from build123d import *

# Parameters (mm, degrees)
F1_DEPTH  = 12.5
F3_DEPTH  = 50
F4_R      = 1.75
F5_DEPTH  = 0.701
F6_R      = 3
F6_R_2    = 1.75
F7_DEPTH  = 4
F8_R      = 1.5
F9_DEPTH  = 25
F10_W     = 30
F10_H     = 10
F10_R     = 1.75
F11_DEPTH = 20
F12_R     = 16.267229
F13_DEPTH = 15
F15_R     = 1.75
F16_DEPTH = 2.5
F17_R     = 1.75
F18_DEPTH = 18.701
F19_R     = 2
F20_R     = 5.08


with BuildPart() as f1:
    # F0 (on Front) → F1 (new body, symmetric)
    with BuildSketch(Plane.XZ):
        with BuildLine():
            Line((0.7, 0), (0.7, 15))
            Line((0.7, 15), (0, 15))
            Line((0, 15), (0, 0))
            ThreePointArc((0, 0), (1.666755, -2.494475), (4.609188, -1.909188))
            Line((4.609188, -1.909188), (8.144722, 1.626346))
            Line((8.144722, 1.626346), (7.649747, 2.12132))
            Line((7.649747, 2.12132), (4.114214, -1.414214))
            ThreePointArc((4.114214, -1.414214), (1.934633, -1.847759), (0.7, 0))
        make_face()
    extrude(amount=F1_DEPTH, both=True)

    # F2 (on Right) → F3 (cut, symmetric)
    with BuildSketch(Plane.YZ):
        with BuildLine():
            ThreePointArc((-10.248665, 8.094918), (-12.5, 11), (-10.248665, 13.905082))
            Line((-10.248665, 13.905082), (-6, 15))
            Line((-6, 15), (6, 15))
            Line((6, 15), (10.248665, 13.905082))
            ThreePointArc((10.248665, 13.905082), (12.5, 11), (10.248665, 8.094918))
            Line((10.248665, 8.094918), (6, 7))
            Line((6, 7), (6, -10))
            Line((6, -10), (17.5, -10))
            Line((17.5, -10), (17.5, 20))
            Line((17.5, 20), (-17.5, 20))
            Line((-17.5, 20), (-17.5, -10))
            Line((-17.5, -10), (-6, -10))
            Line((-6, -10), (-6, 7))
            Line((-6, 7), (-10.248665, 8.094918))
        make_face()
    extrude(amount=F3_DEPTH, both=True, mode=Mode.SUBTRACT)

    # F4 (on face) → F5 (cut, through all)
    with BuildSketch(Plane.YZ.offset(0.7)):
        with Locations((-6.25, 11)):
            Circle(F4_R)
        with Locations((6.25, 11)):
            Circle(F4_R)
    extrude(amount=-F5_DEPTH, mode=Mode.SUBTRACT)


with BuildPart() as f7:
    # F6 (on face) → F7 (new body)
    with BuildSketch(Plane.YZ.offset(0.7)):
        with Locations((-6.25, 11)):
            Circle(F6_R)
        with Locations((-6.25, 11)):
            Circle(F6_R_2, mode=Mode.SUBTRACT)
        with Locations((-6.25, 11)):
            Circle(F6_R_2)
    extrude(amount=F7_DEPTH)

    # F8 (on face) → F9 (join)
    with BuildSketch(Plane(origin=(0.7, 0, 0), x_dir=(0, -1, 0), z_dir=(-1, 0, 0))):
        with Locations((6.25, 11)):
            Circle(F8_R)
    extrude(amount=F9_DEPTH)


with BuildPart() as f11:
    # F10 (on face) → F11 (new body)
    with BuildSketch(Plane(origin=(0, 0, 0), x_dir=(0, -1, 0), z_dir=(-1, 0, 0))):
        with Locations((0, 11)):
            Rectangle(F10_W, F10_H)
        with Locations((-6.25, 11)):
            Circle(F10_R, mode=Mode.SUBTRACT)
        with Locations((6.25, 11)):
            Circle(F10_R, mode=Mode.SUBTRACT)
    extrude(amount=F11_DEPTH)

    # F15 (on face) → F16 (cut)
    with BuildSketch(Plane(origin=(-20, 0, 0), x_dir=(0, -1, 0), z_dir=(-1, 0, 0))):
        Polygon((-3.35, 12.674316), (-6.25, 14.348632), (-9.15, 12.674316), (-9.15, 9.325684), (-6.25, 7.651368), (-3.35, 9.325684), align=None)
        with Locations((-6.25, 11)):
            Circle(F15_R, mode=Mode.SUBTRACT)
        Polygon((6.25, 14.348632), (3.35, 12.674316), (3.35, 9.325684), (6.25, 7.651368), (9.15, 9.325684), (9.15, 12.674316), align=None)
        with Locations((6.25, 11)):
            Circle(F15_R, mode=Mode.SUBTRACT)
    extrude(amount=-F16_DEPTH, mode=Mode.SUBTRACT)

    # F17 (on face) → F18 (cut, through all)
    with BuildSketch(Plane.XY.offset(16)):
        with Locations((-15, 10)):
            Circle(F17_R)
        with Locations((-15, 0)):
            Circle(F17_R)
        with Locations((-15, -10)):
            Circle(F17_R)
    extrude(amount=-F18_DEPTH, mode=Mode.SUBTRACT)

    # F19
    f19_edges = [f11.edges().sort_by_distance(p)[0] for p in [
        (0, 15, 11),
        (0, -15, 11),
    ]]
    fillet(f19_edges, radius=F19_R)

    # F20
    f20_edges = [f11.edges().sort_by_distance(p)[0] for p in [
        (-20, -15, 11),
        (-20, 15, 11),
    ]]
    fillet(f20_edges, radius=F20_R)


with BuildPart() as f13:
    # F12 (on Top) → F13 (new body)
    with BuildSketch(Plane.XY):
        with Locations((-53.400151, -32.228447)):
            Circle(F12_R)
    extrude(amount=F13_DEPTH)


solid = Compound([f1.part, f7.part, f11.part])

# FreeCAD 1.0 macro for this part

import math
import FreeCAD as App
import Part
import Sketcher
Q = App.Units.Quantity


def edges_at(feature, points):
    """Names of the edges that pass closest to the given points."""
    edges = feature.Shape.Edges
    near = lambda p: min(range(len(edges)), key=lambda i: edges[i].distToShape(Part.Vertex(*p))[0])
    return sorted({f"Edge{near(p) + 1}" for p in points})

doc = App.newDocument("Part")
body = doc.addObject("PartDesign::Body", "Body")

sketch1 = body.newObject("Sketcher::SketchObject", "Sketch")
sketch1.AttachmentSupport = (doc.getObject("XZ_Plane"), [""])
sketch1.MapMode = "FlatFace"
sketch1.addGeometry(Part.LineSegment(App.Vector(0.7, 0, 0), App.Vector(0.7, 15, 0)), False)
sketch1.addGeometry(Part.LineSegment(App.Vector(0.7, 15, 0), App.Vector(0, 15, 0)), False)
sketch1.addGeometry(Part.LineSegment(App.Vector(0, 15, 0), App.Vector(0, 0, 0)), False)
sketch1.addGeometry(Part.ArcOfCircle(Part.Circle(App.Vector(2.7, 0, 0), App.Vector(0, 0, 1), 2.7), math.radians(179.999991), math.radians(315.000013)), False)
sketch1.addGeometry(Part.LineSegment(App.Vector(4.609188, -1.909188, 0), App.Vector(8.144722, 1.626346, 0)), False)
sketch1.addGeometry(Part.LineSegment(App.Vector(8.144722, 1.626346, 0), App.Vector(7.649747, 2.12132, 0)), False)
sketch1.addGeometry(Part.LineSegment(App.Vector(7.649747, 2.12132, 0), App.Vector(4.114214, -1.414214, 0)), False)
sketch1.addGeometry(Part.ArcOfCircle(Part.Circle(App.Vector(2.700001, 0, 0), App.Vector(0, 0, 1), 2.000001), math.radians(-179.99999), math.radians(-45.000017)), False)
sketch1.addConstraint(Sketcher.Constraint("Coincident", 0, 2, 1, 1))
sketch1.addConstraint(Sketcher.Constraint("Coincident", 1, 2, 2, 1))
sketch1.addConstraint(Sketcher.Constraint("Tangent", 2, 2, 3, 1))
sketch1.addConstraint(Sketcher.Constraint("Tangent", 3, 2, 4, 1))
sketch1.addConstraint(Sketcher.Constraint("Coincident", 4, 2, 5, 1))
sketch1.addConstraint(Sketcher.Constraint("Coincident", 5, 2, 6, 1))
sketch1.addConstraint(Sketcher.Constraint("Tangent", 6, 2, 7, 2))
sketch1.addConstraint(Sketcher.Constraint("Tangent", 7, 1, 0, 1))
sketch1.addConstraint(Sketcher.Constraint("Vertical", 0))
sketch1.addConstraint(Sketcher.Constraint("Horizontal", 1))
sketch1.addConstraint(Sketcher.Constraint("Vertical", 2))
sketch1.addConstraint(Sketcher.Constraint("Coincident", 2, 2, -1, 1))
sketch1.addConstraint(Sketcher.Constraint("Coincident", 7, 3, 3, 3))
sketch1.addConstraint(Sketcher.Constraint("Perpendicular", 4, 5))
sketch1.addConstraint(Sketcher.Constraint("Perpendicular", 5, 6))
sketch1.addConstraint(Sketcher.Constraint("Radius", 7, 2.000001))
sketch1.addConstraint(Sketcher.Constraint("Radius", 3, 2.7))
sketch1.addConstraint(Sketcher.Constraint("DistanceY", 0, 1, 0, 2, 15.0))
sketch1.addConstraint(Sketcher.Constraint("Angle", 4, Q("45 deg")))
sketch1.addConstraint(Sketcher.Constraint("Distance", 4, 5.0))
pad1 = body.newObject("PartDesign::Pad", "Pad")
pad1.Profile = sketch1
pad1.Length = 25
pad1.Midplane = True

sketch2 = body.newObject("Sketcher::SketchObject", "Sketch001")
sketch2.AttachmentSupport = (doc.getObject("YZ_Plane"), [""])
sketch2.MapMode = "FlatFace"
sketch2.addGeometry(Part.ArcOfCircle(Part.Circle(App.Vector(-9.5, 11, 0), App.Vector(0, 0, 1), 3), math.radians(104.451183), math.radians(255.548817)), False)
sketch2.addGeometry(Part.LineSegment(App.Vector(-10.248665, 13.905082, 0), App.Vector(-6, 15, 0)), False)
sketch2.addGeometry(Part.LineSegment(App.Vector(-6, 15, 0), App.Vector(6, 15, 0)), False)
sketch2.addGeometry(Part.LineSegment(App.Vector(6, 15, 0), App.Vector(10.248665, 13.905082, 0)), False)
sketch2.addGeometry(Part.ArcOfCircle(Part.Circle(App.Vector(9.5, 11, 0), App.Vector(0, 0, 1), 3), math.radians(-75.548817), math.radians(75.548817)), False)
sketch2.addGeometry(Part.LineSegment(App.Vector(10.248665, 8.094918, 0), App.Vector(6, 7, 0)), False)
sketch2.addGeometry(Part.LineSegment(App.Vector(6, 7, 0), App.Vector(6, -10, 0)), False)
sketch2.addGeometry(Part.LineSegment(App.Vector(6, -10, 0), App.Vector(17.5, -10, 0)), False)
sketch2.addGeometry(Part.LineSegment(App.Vector(17.5, -10, 0), App.Vector(17.5, 20, 0)), False)
sketch2.addGeometry(Part.LineSegment(App.Vector(17.5, 20, 0), App.Vector(-17.5, 20, 0)), False)
sketch2.addGeometry(Part.LineSegment(App.Vector(-17.5, 20, 0), App.Vector(-17.5, -10, 0)), False)
sketch2.addGeometry(Part.LineSegment(App.Vector(-17.5, -10, 0), App.Vector(-6, -10, 0)), False)
sketch2.addGeometry(Part.LineSegment(App.Vector(-6, -10, 0), App.Vector(-6, 7, 0)), False)
sketch2.addGeometry(Part.LineSegment(App.Vector(-6, 7, 0), App.Vector(-10.248665, 8.094918, 0)), False)
sketch2.addConstraint(Sketcher.Constraint("Tangent", 0, 1, 1, 1))
sketch2.addConstraint(Sketcher.Constraint("Coincident", 1, 2, 2, 1))
sketch2.addConstraint(Sketcher.Constraint("Coincident", 2, 2, 3, 1))
sketch2.addConstraint(Sketcher.Constraint("Tangent", 3, 2, 4, 2))
sketch2.addConstraint(Sketcher.Constraint("Tangent", 4, 1, 5, 1))
sketch2.addConstraint(Sketcher.Constraint("Coincident", 5, 2, 6, 1))
sketch2.addConstraint(Sketcher.Constraint("Coincident", 6, 2, 7, 1))
sketch2.addConstraint(Sketcher.Constraint("Coincident", 7, 2, 8, 1))
sketch2.addConstraint(Sketcher.Constraint("Coincident", 8, 2, 9, 1))
sketch2.addConstraint(Sketcher.Constraint("Coincident", 9, 2, 10, 1))
sketch2.addConstraint(Sketcher.Constraint("Coincident", 10, 2, 11, 1))
sketch2.addConstraint(Sketcher.Constraint("Coincident", 11, 2, 12, 1))
sketch2.addConstraint(Sketcher.Constraint("Coincident", 12, 2, 13, 1))
sketch2.addConstraint(Sketcher.Constraint("Tangent", 13, 2, 0, 2))
sketch2.addConstraint(Sketcher.Constraint("Horizontal", 2))
sketch2.addConstraint(Sketcher.Constraint("Vertical", 6))
sketch2.addConstraint(Sketcher.Constraint("Horizontal", 7))
sketch2.addConstraint(Sketcher.Constraint("Vertical", 8))
sketch2.addConstraint(Sketcher.Constraint("Horizontal", 9))
sketch2.addConstraint(Sketcher.Constraint("Vertical", 10))
sketch2.addConstraint(Sketcher.Constraint("Horizontal", 11))
sketch2.addConstraint(Sketcher.Constraint("Vertical", 12))
sketch2.addConstraint(Sketcher.Constraint("Equal", 0, 4))
sketch2.addConstraint(Sketcher.Constraint("Symmetric", 0, 3, 4, 3, -2))
sketch2.addConstraint(Sketcher.Constraint("Symmetric", 7, 2, 10, 2, -2))
sketch2.addConstraint(Sketcher.Constraint("Symmetric", 5, 2, 12, 2, -2))
sketch2.addConstraint(Sketcher.Constraint("Parallel", 1, 5))
sketch2.addConstraint(Sketcher.Constraint("Parallel", 3, 13))
sketch2.addConstraint(Sketcher.Constraint("Vertical", 2, 2, 5, 2))
sketch2.addConstraint(Sketcher.Constraint("Radius", 0, 3.0))
sketch2.addConstraint(Sketcher.Constraint("DistanceX", 2, 1, 2, 2, 12.0))
sketch2.addConstraint(Sketcher.Constraint("DistanceX", 9, 2, 9, 1, 35.0))
sketch2.addConstraint(Sketcher.Constraint("DistanceY", 6, 2, 6, 1, 17.0))
sketch2.addConstraint(Sketcher.Constraint("DistanceY", 8, 1, 8, 2, 30.0))
sketch2.addConstraint(Sketcher.Constraint("DistanceY", -1, 1, 0, 3, 11.0))
sketch2.addConstraint(Sketcher.Constraint("DistanceY", -1, 1, 1, 2, 15.0))
sketch2.addConstraint(Sketcher.Constraint("DistanceX", 0, 3, 4, 3, 19.0))
pocket1 = body.newObject("PartDesign::Pocket", "Pocket")
pocket1.Profile = sketch2
pocket1.Length = 100
pocket1.Midplane = True

sketch3 = body.newObject("Sketcher::SketchObject", "Sketch002")
sketch3.AttachmentSupport = (doc.getObject("YZ_Plane"), [""])
sketch3.MapMode = "FlatFace"
sketch3.AttachmentOffset = App.Placement(App.Vector(0, 0, 0.7), App.Rotation())
sketch3.addGeometry(Part.Circle(App.Vector(-6.25, 11, 0), App.Vector(0, 0, 1), 1.75), False)
sketch3.addGeometry(Part.Circle(App.Vector(6.25, 11, 0), App.Vector(0, 0, 1), 1.75), False)
sketch3.addConstraint(Sketcher.Constraint("Equal", 0, 1))
sketch3.addConstraint(Sketcher.Constraint("Symmetric", 0, 3, 1, 3, -2))
sketch3.addConstraint(Sketcher.Constraint("Diameter", 0, 3.5))
sketch3.addConstraint(Sketcher.Constraint("DistanceY", -1, 1, 0, 3, 11.0))
sketch3.addConstraint(Sketcher.Constraint("DistanceX", 0, 3, 1, 3, 12.5))
pocket2 = body.newObject("PartDesign::Pocket", "Pocket001")
pocket2.Profile = sketch3
pocket2.Type = "ThroughAll"
body2 = doc.addObject("PartDesign::Body", "Body001")

sketch4 = body2.newObject("Sketcher::SketchObject", "Sketch003")
sketch4.AttachmentSupport = (doc.getObject("YZ_Plane001"), [""])
sketch4.MapMode = "FlatFace"
sketch4.AttachmentOffset = App.Placement(App.Vector(0, 0, 0.7), App.Rotation())
sketch4.addGeometry(Part.Circle(App.Vector(-6.25, 11, 0), App.Vector(0, 0, 1), 3), False)
sketch4.addConstraint(Sketcher.Constraint("Diameter", 0, 6.0))
sketch4.addConstraint(Sketcher.Constraint("DistanceY", -1, 1, 0, 3, 11.0))
sketch4.addConstraint(Sketcher.Constraint("DistanceX", 0, 3, -1, 1, 6.25))
pad2 = body2.newObject("PartDesign::Pad", "Pad001")
pad2.Profile = sketch4
pad2.Length = 4

sketch5 = body2.newObject("Sketcher::SketchObject", "Sketch004")
sketch5.AttachmentSupport = (doc.getObject("YZ_Plane001"), [""])
sketch5.MapMode = "FlatFace"
sketch5.AttachmentOffset = App.Placement(App.Vector(0, 0, 0.7), App.Rotation())
sketch5.addGeometry(Part.Circle(App.Vector(-6.25, 11, 0), App.Vector(0, 0, 1), 1.5), False)
sketch5.addConstraint(Sketcher.Constraint("Diameter", 0, 3.0))
sketch5.addConstraint(Sketcher.Constraint("DistanceY", -1, 1, 0, 3, 11.0))
sketch5.addConstraint(Sketcher.Constraint("DistanceX", 0, 3, -1, 1, 6.25))
pad3 = body2.newObject("PartDesign::Pad", "Pad002")
pad3.Profile = sketch5
pad3.Length = 25
pad3.Reversed = True
body3 = doc.addObject("PartDesign::Body", "Body002")

sketch6 = body3.newObject("Sketcher::SketchObject", "Sketch005")
sketch6.AttachmentSupport = (doc.getObject("YZ_Plane002"), [""])
sketch6.MapMode = "FlatFace"
sketch6.addGeometry(Part.LineSegment(App.Vector(15, 16, 0), App.Vector(15, 6, 0)), False)
sketch6.addGeometry(Part.LineSegment(App.Vector(15, 6, 0), App.Vector(-15, 6, 0)), False)
sketch6.addGeometry(Part.LineSegment(App.Vector(-15, 6, 0), App.Vector(-15, 16, 0)), False)
sketch6.addGeometry(Part.LineSegment(App.Vector(-15, 16, 0), App.Vector(15, 16, 0)), False)
sketch6.addGeometry(Part.Circle(App.Vector(6.25, 11, 0), App.Vector(0, 0, 1), 1.75), False)
sketch6.addGeometry(Part.Circle(App.Vector(-6.25, 11, 0), App.Vector(0, 0, 1), 1.75), False)
sketch6.addConstraint(Sketcher.Constraint("Coincident", 0, 2, 1, 1))
sketch6.addConstraint(Sketcher.Constraint("Coincident", 1, 2, 2, 1))
sketch6.addConstraint(Sketcher.Constraint("Coincident", 2, 2, 3, 1))
sketch6.addConstraint(Sketcher.Constraint("Coincident", 3, 2, 0, 1))
sketch6.addConstraint(Sketcher.Constraint("Vertical", 0))
sketch6.addConstraint(Sketcher.Constraint("Horizontal", 1))
sketch6.addConstraint(Sketcher.Constraint("Vertical", 2))
sketch6.addConstraint(Sketcher.Constraint("Horizontal", 3))
sketch6.addConstraint(Sketcher.Constraint("Equal", 4, 5))
sketch6.addConstraint(Sketcher.Constraint("Symmetric", 4, 3, 5, 3, -2))
sketch6.addConstraint(Sketcher.Constraint("Diameter", 4, 3.5))
sketch6.addConstraint(Sketcher.Constraint("DistanceX", 1, 2, 1, 1, 30.0))
sketch6.addConstraint(Sketcher.Constraint("DistanceY", 0, 2, 0, 1, 10.0))
sketch6.addConstraint(Sketcher.Constraint("DistanceY", -1, 1, 4, 3, 11.0))
sketch6.addConstraint(Sketcher.Constraint("DistanceX", -1, 1, 0, 2, 15.0))
sketch6.addConstraint(Sketcher.Constraint("DistanceY", -1, 1, 0, 2, 6.0))
sketch6.addConstraint(Sketcher.Constraint("DistanceX", 5, 3, 4, 3, 12.5))
pad4 = body3.newObject("PartDesign::Pad", "Pad003")
pad4.Profile = sketch6
pad4.Length = 20
pad4.Reversed = True

sketch7 = body3.newObject("Sketcher::SketchObject", "Sketch006")
sketch7.AttachmentSupport = (doc.getObject("YZ_Plane002"), [""])
sketch7.MapMode = "FlatFace"
sketch7.AttachmentOffset = App.Placement(App.Vector(0, 0, -20), App.Rotation())
sketch7.addGeometry(Part.LineSegment(App.Vector(3.35, 12.674316, 0), App.Vector(6.25, 14.348632, 0)), False)
sketch7.addGeometry(Part.LineSegment(App.Vector(6.25, 14.348632, 0), App.Vector(9.15, 12.674316, 0)), False)
sketch7.addGeometry(Part.LineSegment(App.Vector(9.15, 12.674316, 0), App.Vector(9.15, 9.325684, 0)), False)
sketch7.addGeometry(Part.LineSegment(App.Vector(9.15, 9.325684, 0), App.Vector(6.25, 7.651368, 0)), False)
sketch7.addGeometry(Part.LineSegment(App.Vector(6.25, 7.651368, 0), App.Vector(3.35, 9.325684, 0)), False)
sketch7.addGeometry(Part.LineSegment(App.Vector(3.35, 9.325684, 0), App.Vector(3.35, 12.674316, 0)), False)
sketch7.addGeometry(Part.Circle(App.Vector(6.25, 11, 0), App.Vector(0, 0, 1), 1.75), False)
sketch7.addGeometry(Part.LineSegment(App.Vector(-6.25, 14.348632, 0), App.Vector(-3.35, 12.674316, 0)), False)
sketch7.addGeometry(Part.LineSegment(App.Vector(-3.35, 12.674316, 0), App.Vector(-3.35, 9.325684, 0)), False)
sketch7.addGeometry(Part.LineSegment(App.Vector(-3.35, 9.325684, 0), App.Vector(-6.25, 7.651368, 0)), False)
sketch7.addGeometry(Part.LineSegment(App.Vector(-6.25, 7.651368, 0), App.Vector(-9.15, 9.325684, 0)), False)
sketch7.addGeometry(Part.LineSegment(App.Vector(-9.15, 9.325684, 0), App.Vector(-9.15, 12.674316, 0)), False)
sketch7.addGeometry(Part.LineSegment(App.Vector(-9.15, 12.674316, 0), App.Vector(-6.25, 14.348632, 0)), False)
sketch7.addGeometry(Part.Circle(App.Vector(-6.25, 11, 0), App.Vector(0, 0, 1), 1.75), False)
sketch7.addConstraint(Sketcher.Constraint("Coincident", 0, 2, 1, 1))
sketch7.addConstraint(Sketcher.Constraint("Coincident", 1, 2, 2, 1))
sketch7.addConstraint(Sketcher.Constraint("Coincident", 2, 2, 3, 1))
sketch7.addConstraint(Sketcher.Constraint("Coincident", 3, 2, 4, 1))
sketch7.addConstraint(Sketcher.Constraint("Coincident", 4, 2, 5, 1))
sketch7.addConstraint(Sketcher.Constraint("Coincident", 5, 2, 0, 1))
sketch7.addConstraint(Sketcher.Constraint("Coincident", 7, 2, 8, 1))
sketch7.addConstraint(Sketcher.Constraint("Coincident", 8, 2, 9, 1))
sketch7.addConstraint(Sketcher.Constraint("Coincident", 9, 2, 10, 1))
sketch7.addConstraint(Sketcher.Constraint("Coincident", 10, 2, 11, 1))
sketch7.addConstraint(Sketcher.Constraint("Coincident", 11, 2, 12, 1))
sketch7.addConstraint(Sketcher.Constraint("Coincident", 12, 2, 7, 1))
sketch7.addConstraint(Sketcher.Constraint("Vertical", 2))
sketch7.addConstraint(Sketcher.Constraint("Vertical", 5))
sketch7.addConstraint(Sketcher.Constraint("Vertical", 8))
sketch7.addConstraint(Sketcher.Constraint("Vertical", 11))
sketch7.addConstraint(Sketcher.Constraint("Equal", 6, 13))
sketch7.addConstraint(Sketcher.Constraint("Symmetric", 6, 3, 13, 3, -2))
sketch7.addConstraint(Sketcher.Constraint("Symmetric", 5, 2, 7, 2, -2))
sketch7.addConstraint(Sketcher.Constraint("Symmetric", 3, 2, 9, 2, -2))
sketch7.addConstraint(Sketcher.Constraint("Symmetric", 2, 2, 10, 2, -2))
sketch7.addConstraint(Sketcher.Constraint("Symmetric", 0, 2, 12, 2, -2))
sketch7.addConstraint(Sketcher.Constraint("Parallel", 0, 3))
sketch7.addConstraint(Sketcher.Constraint("Parallel", 1, 4))
sketch7.addConstraint(Sketcher.Constraint("Parallel", 4, 7))
sketch7.addConstraint(Sketcher.Constraint("Parallel", 3, 9))
sketch7.addConstraint(Sketcher.Constraint("Parallel", 9, 12))
sketch7.addConstraint(Sketcher.Constraint("Horizontal", 2, 2, 4, 2))
sketch7.addConstraint(Sketcher.Constraint("Horizontal", 1, 2, 5, 2))
sketch7.addConstraint(Sketcher.Constraint("Vertical", 6, 3, 0, 2))
sketch7.addConstraint(Sketcher.Constraint("Diameter", 6, 3.5))
sketch7.addConstraint(Sketcher.Constraint("Angle", 0, Q("30.000003 deg")))
sketch7.addConstraint(Sketcher.Constraint("DistanceY", -1, 1, 6, 3, 11.0))
sketch7.addConstraint(Sketcher.Constraint("DistanceX", 13, 3, 6, 3, 12.5))
sketch7.addConstraint(Sketcher.Constraint("DistanceX", 6, 3, 1, 2, 2.9))
sketch7.addConstraint(Sketcher.Constraint("DistanceY", 2, 2, 2, 1, 3.348632))
sketch7.addConstraint(Sketcher.Constraint("DistanceY", -1, 1, 0, 2, 14.348632))
pocket3 = body3.newObject("PartDesign::Pocket", "Pocket002")
pocket3.Profile = sketch7
pocket3.Length = 2.5
pocket3.Reversed = True

sketch8 = body3.newObject("Sketcher::SketchObject", "Sketch007")
sketch8.AttachmentSupport = (doc.getObject("XY_Plane002"), [""])
sketch8.MapMode = "FlatFace"
sketch8.AttachmentOffset = App.Placement(App.Vector(0, 0, 16), App.Rotation())
sketch8.addGeometry(Part.Circle(App.Vector(-15, 10, 0), App.Vector(0, 0, 1), 1.75), False)
sketch8.addGeometry(Part.Circle(App.Vector(-15, 0, 0), App.Vector(0, 0, 1), 1.75), False)
sketch8.addGeometry(Part.Circle(App.Vector(-15, -10, 0), App.Vector(0, 0, 1), 1.75), False)
sketch8.addConstraint(Sketcher.Constraint("Equal", 0, 1))
sketch8.addConstraint(Sketcher.Constraint("Equal", 1, 2))
sketch8.addConstraint(Sketcher.Constraint("Symmetric", 0, 3, 2, 3, -1))
sketch8.addConstraint(Sketcher.Constraint("PointOnObject", 1, 3, -1))
sketch8.addConstraint(Sketcher.Constraint("Vertical", 0, 3, 1, 3))
sketch8.addConstraint(Sketcher.Constraint("Diameter", 0, 3.5))
sketch8.addConstraint(Sketcher.Constraint("DistanceX", 0, 3, -1, 1, 15.0))
sketch8.addConstraint(Sketcher.Constraint("DistanceY", -1, 1, 0, 3, 10.0))
pocket4 = body3.newObject("PartDesign::Pocket", "Pocket003")
pocket4.Profile = sketch8
pocket4.Type = "ThroughAll"
doc.recompute()

fillet = body3.newObject("PartDesign::Fillet", "Fillet")
fillet.Base = (pocket4, edges_at(pocket4, [(0, 15, 11), (0, -15, 11)]))
fillet.Radius = 2
doc.recompute()

fillet2 = body3.newObject("PartDesign::Fillet", "Fillet001")
fillet2.Base = (fillet, edges_at(fillet, [(-20, -15, 11), (-20, 15, 11)]))
fillet2.Radius = 5.08
body4 = doc.addObject("PartDesign::Body", "Body003")

sketch9 = body4.newObject("Sketcher::SketchObject", "Sketch008")
sketch9.AttachmentSupport = (doc.getObject("XY_Plane003"), [""])
sketch9.MapMode = "FlatFace"
sketch9.addGeometry(Part.Circle(App.Vector(-53.400151, -32.228447, 0), App.Vector(0, 0, 1), 16.267229), False)
sketch9.addConstraint(Sketcher.Constraint("Diameter", 0, 32.534458))
sketch9.addConstraint(Sketcher.Constraint("DistanceX", 0, 3, -1, 1, 53.400151))
sketch9.addConstraint(Sketcher.Constraint("DistanceY", 0, 3, -1, 1, 32.228447))
pad5 = body4.newObject("PartDesign::Pad", "Pad004")
pad5.Profile = sketch9
pad5.Length = 15
body4.Visibility = False

doc.recompute()
